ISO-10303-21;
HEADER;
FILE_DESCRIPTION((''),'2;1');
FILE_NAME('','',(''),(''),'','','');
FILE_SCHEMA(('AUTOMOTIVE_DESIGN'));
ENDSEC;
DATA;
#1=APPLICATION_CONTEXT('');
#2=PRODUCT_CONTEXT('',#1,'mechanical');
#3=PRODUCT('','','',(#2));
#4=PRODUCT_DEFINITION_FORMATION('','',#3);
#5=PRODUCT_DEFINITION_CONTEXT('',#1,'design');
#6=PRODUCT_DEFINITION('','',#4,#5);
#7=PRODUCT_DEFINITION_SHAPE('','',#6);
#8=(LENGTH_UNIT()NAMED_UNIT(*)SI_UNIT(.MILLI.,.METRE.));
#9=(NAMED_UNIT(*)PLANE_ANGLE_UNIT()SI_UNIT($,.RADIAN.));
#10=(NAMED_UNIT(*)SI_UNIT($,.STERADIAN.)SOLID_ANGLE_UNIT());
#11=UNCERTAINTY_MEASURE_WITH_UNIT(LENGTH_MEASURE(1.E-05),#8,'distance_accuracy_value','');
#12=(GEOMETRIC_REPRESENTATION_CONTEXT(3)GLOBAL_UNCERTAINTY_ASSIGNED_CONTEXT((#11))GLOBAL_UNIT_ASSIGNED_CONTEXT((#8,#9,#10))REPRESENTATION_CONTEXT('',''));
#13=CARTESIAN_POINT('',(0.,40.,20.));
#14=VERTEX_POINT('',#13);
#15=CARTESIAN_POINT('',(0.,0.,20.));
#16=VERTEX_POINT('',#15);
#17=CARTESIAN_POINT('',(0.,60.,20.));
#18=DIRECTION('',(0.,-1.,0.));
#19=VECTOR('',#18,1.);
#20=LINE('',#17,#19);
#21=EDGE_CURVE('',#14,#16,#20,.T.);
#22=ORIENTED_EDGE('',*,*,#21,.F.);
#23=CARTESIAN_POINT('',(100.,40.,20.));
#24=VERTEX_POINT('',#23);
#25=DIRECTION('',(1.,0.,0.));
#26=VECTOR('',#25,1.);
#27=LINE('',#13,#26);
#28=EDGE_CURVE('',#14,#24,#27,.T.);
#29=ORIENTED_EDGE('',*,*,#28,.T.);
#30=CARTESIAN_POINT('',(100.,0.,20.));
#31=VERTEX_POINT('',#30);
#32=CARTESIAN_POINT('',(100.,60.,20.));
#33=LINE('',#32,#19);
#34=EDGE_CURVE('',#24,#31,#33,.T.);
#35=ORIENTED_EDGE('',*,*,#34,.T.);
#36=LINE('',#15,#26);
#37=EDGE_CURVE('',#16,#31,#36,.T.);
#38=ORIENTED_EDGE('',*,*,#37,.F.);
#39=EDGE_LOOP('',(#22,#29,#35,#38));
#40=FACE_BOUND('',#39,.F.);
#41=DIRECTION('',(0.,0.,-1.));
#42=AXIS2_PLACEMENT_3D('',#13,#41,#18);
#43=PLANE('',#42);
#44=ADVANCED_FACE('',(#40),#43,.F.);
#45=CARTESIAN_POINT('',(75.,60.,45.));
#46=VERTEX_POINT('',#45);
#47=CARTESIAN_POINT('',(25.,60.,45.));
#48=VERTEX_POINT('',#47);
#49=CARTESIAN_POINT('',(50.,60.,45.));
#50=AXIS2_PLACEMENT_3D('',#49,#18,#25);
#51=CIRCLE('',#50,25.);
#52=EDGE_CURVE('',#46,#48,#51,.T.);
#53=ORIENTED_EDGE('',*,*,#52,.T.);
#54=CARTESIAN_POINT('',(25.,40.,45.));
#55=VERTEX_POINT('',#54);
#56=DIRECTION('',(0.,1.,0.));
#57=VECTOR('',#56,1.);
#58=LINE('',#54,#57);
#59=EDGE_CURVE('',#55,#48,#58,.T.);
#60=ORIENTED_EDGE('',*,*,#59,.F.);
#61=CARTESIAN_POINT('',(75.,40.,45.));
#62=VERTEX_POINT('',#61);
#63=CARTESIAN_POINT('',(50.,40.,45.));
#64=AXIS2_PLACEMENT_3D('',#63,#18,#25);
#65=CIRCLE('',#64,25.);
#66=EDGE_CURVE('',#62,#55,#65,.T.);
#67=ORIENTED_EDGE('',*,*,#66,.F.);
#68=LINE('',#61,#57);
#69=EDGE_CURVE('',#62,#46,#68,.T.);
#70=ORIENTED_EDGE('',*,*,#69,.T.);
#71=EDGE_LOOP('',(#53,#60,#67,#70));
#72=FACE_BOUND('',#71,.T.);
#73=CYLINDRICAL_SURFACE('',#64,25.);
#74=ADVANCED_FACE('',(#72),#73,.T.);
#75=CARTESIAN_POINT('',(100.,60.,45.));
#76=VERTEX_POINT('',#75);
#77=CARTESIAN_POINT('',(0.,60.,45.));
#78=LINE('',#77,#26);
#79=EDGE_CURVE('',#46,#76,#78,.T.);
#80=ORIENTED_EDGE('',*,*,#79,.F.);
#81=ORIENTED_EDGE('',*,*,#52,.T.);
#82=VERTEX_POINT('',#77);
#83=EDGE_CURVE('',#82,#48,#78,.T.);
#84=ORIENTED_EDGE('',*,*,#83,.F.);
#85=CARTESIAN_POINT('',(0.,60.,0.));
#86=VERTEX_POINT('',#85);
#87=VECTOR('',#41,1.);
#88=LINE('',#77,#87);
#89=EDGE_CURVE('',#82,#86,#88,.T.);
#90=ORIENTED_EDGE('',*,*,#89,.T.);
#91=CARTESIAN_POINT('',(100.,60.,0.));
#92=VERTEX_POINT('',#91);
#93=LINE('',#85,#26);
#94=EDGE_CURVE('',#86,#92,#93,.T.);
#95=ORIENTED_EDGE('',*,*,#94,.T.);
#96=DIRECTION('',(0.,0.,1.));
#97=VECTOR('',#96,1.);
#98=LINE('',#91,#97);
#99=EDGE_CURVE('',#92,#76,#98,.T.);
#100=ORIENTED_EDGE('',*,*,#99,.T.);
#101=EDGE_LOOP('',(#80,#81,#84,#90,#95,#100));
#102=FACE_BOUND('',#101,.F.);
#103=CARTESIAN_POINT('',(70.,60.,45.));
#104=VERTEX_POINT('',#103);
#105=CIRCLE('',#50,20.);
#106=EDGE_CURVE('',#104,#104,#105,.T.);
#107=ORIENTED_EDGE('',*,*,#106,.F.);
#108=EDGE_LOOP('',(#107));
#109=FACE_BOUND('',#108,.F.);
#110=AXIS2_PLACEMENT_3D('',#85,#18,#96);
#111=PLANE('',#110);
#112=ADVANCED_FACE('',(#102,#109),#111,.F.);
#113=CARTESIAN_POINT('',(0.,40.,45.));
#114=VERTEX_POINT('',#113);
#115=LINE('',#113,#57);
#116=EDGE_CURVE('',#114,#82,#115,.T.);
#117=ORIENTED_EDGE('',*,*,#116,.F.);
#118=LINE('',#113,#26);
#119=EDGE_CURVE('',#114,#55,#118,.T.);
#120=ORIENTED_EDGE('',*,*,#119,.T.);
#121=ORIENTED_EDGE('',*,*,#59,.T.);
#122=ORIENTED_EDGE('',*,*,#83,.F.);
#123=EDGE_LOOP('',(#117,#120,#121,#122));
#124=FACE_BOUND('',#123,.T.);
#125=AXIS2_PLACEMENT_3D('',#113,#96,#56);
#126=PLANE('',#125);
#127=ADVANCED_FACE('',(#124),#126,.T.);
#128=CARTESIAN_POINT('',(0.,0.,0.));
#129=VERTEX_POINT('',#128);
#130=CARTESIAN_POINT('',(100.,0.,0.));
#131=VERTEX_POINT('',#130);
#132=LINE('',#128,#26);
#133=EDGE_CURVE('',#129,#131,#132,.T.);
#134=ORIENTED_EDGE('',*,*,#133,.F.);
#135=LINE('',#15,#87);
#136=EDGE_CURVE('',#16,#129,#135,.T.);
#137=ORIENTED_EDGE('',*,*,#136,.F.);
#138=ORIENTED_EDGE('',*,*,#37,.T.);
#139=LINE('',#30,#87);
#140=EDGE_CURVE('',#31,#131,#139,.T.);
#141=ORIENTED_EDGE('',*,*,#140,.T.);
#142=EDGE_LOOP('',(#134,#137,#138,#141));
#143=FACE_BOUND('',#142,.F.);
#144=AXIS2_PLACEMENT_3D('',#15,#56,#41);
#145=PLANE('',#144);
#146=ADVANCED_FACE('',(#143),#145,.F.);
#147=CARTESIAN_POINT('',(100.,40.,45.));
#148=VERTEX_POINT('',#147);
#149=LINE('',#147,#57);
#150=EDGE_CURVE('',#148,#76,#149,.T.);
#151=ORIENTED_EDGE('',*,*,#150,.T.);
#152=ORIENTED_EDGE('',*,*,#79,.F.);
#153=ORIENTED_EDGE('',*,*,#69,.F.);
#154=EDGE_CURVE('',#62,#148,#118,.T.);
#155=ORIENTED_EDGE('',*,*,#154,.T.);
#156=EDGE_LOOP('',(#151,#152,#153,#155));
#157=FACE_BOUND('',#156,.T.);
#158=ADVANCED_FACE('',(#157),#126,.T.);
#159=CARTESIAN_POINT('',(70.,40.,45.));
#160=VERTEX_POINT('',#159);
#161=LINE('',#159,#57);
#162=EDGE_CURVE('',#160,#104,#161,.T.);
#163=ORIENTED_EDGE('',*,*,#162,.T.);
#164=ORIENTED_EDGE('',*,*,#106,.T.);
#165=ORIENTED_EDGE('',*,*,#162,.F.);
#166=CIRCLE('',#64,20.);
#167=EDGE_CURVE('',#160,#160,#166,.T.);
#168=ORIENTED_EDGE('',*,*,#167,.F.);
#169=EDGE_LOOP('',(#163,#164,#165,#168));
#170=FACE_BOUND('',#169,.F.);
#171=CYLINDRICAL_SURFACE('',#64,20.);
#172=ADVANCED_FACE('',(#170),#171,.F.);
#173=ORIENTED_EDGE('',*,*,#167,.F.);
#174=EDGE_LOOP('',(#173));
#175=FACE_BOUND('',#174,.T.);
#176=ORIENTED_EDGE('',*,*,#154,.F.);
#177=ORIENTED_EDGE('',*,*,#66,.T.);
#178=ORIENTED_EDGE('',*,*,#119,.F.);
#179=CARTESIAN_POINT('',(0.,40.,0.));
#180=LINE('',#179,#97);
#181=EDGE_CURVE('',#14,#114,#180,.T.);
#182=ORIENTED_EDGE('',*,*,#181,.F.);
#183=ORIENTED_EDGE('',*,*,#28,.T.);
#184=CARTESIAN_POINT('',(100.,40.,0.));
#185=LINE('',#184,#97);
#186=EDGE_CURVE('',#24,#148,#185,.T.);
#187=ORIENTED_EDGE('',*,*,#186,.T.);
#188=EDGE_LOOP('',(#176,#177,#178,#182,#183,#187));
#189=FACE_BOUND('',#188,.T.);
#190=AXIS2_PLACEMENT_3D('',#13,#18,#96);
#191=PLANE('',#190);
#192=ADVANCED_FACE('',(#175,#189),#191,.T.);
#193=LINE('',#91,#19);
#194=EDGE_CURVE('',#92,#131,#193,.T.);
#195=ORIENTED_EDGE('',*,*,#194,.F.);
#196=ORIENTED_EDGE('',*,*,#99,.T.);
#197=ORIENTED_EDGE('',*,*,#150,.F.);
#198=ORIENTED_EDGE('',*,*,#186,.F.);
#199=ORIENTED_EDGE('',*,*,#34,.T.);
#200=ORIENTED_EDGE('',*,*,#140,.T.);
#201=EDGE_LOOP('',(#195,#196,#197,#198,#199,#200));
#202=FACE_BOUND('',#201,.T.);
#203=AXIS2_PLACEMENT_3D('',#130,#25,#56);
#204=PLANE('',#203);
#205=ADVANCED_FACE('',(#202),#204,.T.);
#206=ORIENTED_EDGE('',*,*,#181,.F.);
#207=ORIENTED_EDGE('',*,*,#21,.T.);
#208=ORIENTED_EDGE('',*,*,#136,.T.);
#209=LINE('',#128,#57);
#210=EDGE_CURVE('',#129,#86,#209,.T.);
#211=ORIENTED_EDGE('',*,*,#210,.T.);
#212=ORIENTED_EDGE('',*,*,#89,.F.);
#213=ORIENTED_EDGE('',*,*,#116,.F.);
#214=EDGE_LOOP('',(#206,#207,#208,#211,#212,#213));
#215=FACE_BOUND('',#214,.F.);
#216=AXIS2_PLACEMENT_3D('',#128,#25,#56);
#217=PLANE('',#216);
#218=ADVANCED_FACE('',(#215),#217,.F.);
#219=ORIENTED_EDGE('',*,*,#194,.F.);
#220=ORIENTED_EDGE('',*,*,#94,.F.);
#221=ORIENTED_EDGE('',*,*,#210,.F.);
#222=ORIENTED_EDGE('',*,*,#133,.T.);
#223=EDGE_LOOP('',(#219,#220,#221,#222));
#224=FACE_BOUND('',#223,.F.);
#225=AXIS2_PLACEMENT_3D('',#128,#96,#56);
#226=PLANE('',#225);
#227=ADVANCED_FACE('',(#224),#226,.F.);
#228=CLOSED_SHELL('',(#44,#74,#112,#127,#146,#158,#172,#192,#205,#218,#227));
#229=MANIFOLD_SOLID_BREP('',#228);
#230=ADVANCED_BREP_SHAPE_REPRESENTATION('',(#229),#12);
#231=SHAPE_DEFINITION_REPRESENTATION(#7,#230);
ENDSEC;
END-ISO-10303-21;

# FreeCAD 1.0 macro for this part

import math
import FreeCAD as App
import Part
import Sketcher

V = App.Vector


def add_polygon(sketch, points):
    """Adds a closed chain of lines whose ends are joined by coincident constraints."""
    first, n = sketch.GeometryCount, len(points)
    for a, b in zip(points, points[1:] + points[:1]):
        sketch.addGeometry(Part.LineSegment(App.Vector(*a, 0), App.Vector(*b, 0)), False)
    for i in range(n):
        sketch.addConstraint(Sketcher.Constraint("Coincident", first + i, 2, first + (i + 1) % n, 1))

doc = App.newDocument("Part")
body = doc.addObject("PartDesign::Body", "Body")

sketch1 = doc.addObject("Sketcher::SketchObject", "Sketch")
body.addObject(sketch1)
sketch1.AttachmentSupport = (doc.YZ_Plane, [""])
sketch1.MapMode = "FlatFace"
add_polygon(sketch1, [(0, 20), (0, 0), (60, 0), (60, 45), (40, 45), (40, 20)])
sketch1.addConstraint([
    Sketcher.Constraint("Vertical", 0),
    Sketcher.Constraint("Horizontal", 1),
    Sketcher.Constraint("Vertical", 2),
    Sketcher.Constraint("Horizontal", 3),
    Sketcher.Constraint("Vertical", 4),
    Sketcher.Constraint("Horizontal", 5),
    Sketcher.Constraint("Coincident", 0, 2, -1, 1),
    Sketcher.Constraint("Equal", 3, 0),
    Sketcher.Constraint("DistanceX", 1, 1, 1, 2, 60.0),
    Sketcher.Constraint("DistanceX", 3, 2, 3, 1, 20.0),
    Sketcher.Constraint("DistanceY", 2, 1, 2, 2, 45.0),
])
pad1 = doc.addObject("PartDesign::Pad", "Pad")
body.addObject(pad1)
pad1.Profile = sketch1
pad1.Length = 100

sketch2 = doc.addObject("Sketcher::SketchObject", "Sketch001")
body.addObject(sketch2)
sketch2.AttachmentSupport = (doc.XZ_Plane, [""])
sketch2.MapMode = "FlatFace"
sketch2.AttachmentOffset = App.Placement(V(0, 0, -40), App.Rotation())
sketch2.addGeometry([
    Part.ArcOfCircle(Part.Circle(V(50, 45, 0), V(0, 0, 1), 25), math.radians(0), math.radians(180)),
    Part.LineSegment(V(25, 45, 0), V(75, 45, 0)),
], False)
sketch2.addConstraint([
    Sketcher.Constraint("Coincident", 0, 1, 1, 2),
    Sketcher.Constraint("Coincident", 1, 1, 0, 2),
    Sketcher.Constraint("Horizontal", 1),
    Sketcher.Constraint("Radius", 0, 25.0),
    Sketcher.Constraint("DistanceX", -1, 1, 0, 3, 50.0),
    Sketcher.Constraint("DistanceY", -1, 1, 0, 3, 45.0),
    Sketcher.Constraint("DistanceY", -1, 1, 0, 1, 45.0),
])
pad2 = doc.addObject("PartDesign::Pad", "Pad001")
body.addObject(pad2)
pad2.Profile = sketch2
pad2.Length = 20
pad2.Reversed = True

sketch3 = doc.addObject("Sketcher::SketchObject", "Sketch002")
body.addObject(sketch3)
sketch3.AttachmentSupport = (doc.XZ_Plane, [""])
sketch3.MapMode = "FlatFace"
sketch3.AttachmentOffset = App.Placement(V(0, 0, -40), App.Rotation())
sketch3.addGeometry(Part.Circle(V(50, 45, 0), V(0, 0, 1), 20), False)
sketch3.addConstraint([
    Sketcher.Constraint("Diameter", 0, 40.0),
    Sketcher.Constraint("DistanceX", -1, 1, 0, 3, 50.0),
    Sketcher.Constraint("DistanceY", -1, 1, 0, 3, 45.0),
])
pocket1 = doc.addObject("PartDesign::Pocket", "Pocket")
body.addObject(pocket1)
pocket1.Profile = sketch3
pocket1.Type = "ThroughAll"

doc.recompute()
